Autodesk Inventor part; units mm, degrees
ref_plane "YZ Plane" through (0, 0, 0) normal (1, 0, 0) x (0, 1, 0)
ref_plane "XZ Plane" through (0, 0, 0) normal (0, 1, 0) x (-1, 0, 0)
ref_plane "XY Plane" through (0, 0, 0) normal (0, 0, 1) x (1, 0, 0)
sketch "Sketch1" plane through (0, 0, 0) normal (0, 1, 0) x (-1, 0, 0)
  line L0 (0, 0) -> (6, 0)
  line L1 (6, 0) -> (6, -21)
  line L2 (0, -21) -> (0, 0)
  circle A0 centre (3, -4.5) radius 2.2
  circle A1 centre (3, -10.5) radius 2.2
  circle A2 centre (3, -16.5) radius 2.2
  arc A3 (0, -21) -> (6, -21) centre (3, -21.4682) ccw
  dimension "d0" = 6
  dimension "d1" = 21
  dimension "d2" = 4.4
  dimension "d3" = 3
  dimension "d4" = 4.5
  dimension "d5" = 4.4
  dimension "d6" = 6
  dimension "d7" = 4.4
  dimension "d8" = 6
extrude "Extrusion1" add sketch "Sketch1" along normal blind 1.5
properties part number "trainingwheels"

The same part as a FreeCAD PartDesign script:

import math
import FreeCAD as App
import Part
import Sketcher
Q = App.Units.Quantity

doc = App.newDocument("Part")
body = doc.addObject("PartDesign::Body", "Body")

# Sketch on XZ plane
sketch1 = body.newObject("Sketcher::SketchObject", "Sketch")
sketch1.AttachmentSupport = (doc.getObject("XZ_Plane"), [""])
sketch1.MapMode = "FlatFace"
sketch1.addGeometry([
    Part.LineSegment(App.Vector(-6, 0, 0), App.Vector(0, 0, 0)),  # 0
    Part.LineSegment(App.Vector(0, 0, 0), App.Vector(0, -21, 0)),  # 1
    Part.ArcOfCircle(Part.Circle(App.Vector(-3, -21.5, 0), App.Vector(0, 0, 1), 3), math.radians(171), math.radians(369)),  # 2
    Part.LineSegment(App.Vector(-6, -21, 0), App.Vector(-6, 0, 0)),  # 3
    Part.Circle(App.Vector(-3, -16.5, 0), App.Vector(0, 0, 1), 2.2),  # 4
    Part.Circle(App.Vector(-3, -10.5, 0), App.Vector(0, 0, 1), 2.2),  # 5
    Part.Circle(App.Vector(-3, -4.5, 0), App.Vector(0, 0, 1), 2.2),  # 6
], False)
sketch1.addConstraint([
    Sketcher.Constraint("Coincident", 0, 2, 1, 1),
    Sketcher.Constraint("Coincident", 1, 2, 2, 2),
    Sketcher.Constraint("Coincident", 2, 1, 3, 1),
    Sketcher.Constraint("Coincident", 3, 2, 0, 1),
    Sketcher.Constraint("Horizontal", 0),
    Sketcher.Constraint("Vertical", 1),
    Sketcher.Constraint("Vertical", 3),
    Sketcher.Constraint("Coincident", 0, 2, -1, 1),
    Sketcher.Constraint("Equal", 4, 5),
    Sketcher.Constraint("Equal", 5, 6),
    Sketcher.Constraint("Horizontal", 1, 2, 2, 1),
    Sketcher.Constraint("Vertical", 2, 3, 4, 3),
    Sketcher.Constraint("Vertical", 4, 3, 5, 3),
    Sketcher.Constraint("Vertical", 5, 3, 6, 3),
    Sketcher.Constraint("Diameter", 4, Q("4.4 mm")),
    Sketcher.Constraint("DistanceX", 0, 1, 0, 2, Q("6 mm")),
    Sketcher.Constraint("DistanceY", 1, 2, 1, 1, Q("21 mm")),
    Sketcher.Constraint("DistanceY", 4, 3, 5, 3, Q("6 mm")),
    Sketcher.Constraint("DistanceY", 5, 3, 6, 3, Q("6 mm")),
    Sketcher.Constraint("DistanceY", 6, 3, -1, 1, Q("4.5 mm")),
    Sketcher.Constraint("Radius", 2, Q("3.0363 mm")),
])
pad1 = body.newObject("PartDesign::Pad", "Pad")
pad1.Profile = sketch1
pad1.Length = 1.5
pad1.Reversed = True

doc.recompute()
